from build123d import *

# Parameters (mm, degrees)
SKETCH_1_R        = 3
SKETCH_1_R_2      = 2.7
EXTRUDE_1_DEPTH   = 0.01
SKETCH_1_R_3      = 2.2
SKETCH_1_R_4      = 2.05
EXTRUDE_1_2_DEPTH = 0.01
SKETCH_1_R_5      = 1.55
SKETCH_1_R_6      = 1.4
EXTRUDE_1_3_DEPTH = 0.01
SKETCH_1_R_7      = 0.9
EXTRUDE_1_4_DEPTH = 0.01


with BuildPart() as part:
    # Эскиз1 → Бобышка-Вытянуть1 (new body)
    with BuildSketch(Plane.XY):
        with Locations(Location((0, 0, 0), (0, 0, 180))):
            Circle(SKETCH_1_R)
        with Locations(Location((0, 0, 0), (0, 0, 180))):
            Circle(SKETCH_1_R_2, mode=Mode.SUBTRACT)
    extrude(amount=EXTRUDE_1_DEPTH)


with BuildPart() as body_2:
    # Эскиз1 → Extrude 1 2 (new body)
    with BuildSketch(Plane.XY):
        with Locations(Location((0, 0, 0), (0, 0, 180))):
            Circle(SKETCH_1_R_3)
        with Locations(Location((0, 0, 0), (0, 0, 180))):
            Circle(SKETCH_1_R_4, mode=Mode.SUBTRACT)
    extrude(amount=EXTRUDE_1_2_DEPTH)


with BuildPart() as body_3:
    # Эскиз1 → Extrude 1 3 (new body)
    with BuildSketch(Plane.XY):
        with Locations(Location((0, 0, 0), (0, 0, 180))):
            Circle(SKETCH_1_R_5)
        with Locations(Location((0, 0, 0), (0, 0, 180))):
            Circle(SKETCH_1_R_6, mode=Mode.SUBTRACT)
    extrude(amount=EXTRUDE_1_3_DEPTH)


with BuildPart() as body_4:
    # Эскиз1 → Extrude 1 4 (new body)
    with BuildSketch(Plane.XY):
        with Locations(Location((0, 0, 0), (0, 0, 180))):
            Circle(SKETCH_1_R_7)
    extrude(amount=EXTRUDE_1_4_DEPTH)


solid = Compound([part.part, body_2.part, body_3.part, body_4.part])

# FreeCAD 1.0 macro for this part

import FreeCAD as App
import Part
import Sketcher
from FreeCAD import Vector

doc = App.newDocument("Part")
body = doc.addObject("PartDesign::Body", "Body")

# Sketch on XY plane
sketch1 = body.newObject("Sketcher::SketchObject", "Sketch")
sketch1.AttachmentSupport = (doc.getObject("XY_Plane"), [""])
sketch1.MapMode = "FlatFace"
sketch1.addGeometry(Part.Circle(Vector(0, 0, 0), Vector(0, 0, 1), 3), False)
sketch1.addGeometry(Part.Circle(Vector(0, 0, 0), Vector(0, 0, 1), 2.7), False)
sketch1.addConstraint(Sketcher.Constraint("Coincident", 0, 3, -1, 1))
sketch1.addConstraint(Sketcher.Constraint("Coincident", 1, 3, -1, 1))
sketch1.addConstraint(Sketcher.Constraint("Diameter", 0, 6.0))
sketch1.addConstraint(Sketcher.Constraint("Diameter", 1, 5.4))
pad1 = body.newObject("PartDesign::Pad", "Pad")
pad1.Profile = sketch1
pad1.Length = 0.01
body2 = doc.addObject("PartDesign::Body", "Body001")

# Sketch on XY plane
sketch2 = body2.newObject("Sketcher::SketchObject", "Sketch001")
sketch2.AttachmentSupport = (doc.getObject("XY_Plane001"), [""])
sketch2.MapMode = "FlatFace"
sketch2.addGeometry(Part.Circle(Vector(0, 0, 0), Vector(0, 0, 1), 2.2), False)
sketch2.addGeometry(Part.Circle(Vector(0, 0, 0), Vector(0, 0, 1), 2), False)
sketch2.addConstraint(Sketcher.Constraint("Coincident", 0, 3, -1, 1))
sketch2.addConstraint(Sketcher.Constraint("Coincident", 1, 3, -1, 1))
sketch2.addConstraint(Sketcher.Constraint("Diameter", 0, 4.4))
sketch2.addConstraint(Sketcher.Constraint("Diameter", 1, 4.1))
pad2 = body2.newObject("PartDesign::Pad", "Pad001")
pad2.Profile = sketch2
pad2.Length = 0.01
body3 = doc.addObject("PartDesign::Body", "Body002")

# Sketch on XY plane
sketch3 = body3.newObject("Sketcher::SketchObject", "Sketch002")
sketch3.AttachmentSupport = (doc.getObject("XY_Plane002"), [""])
sketch3.MapMode = "FlatFace"
sketch3.addGeometry(Part.Circle(Vector(0, 0, 0), Vector(0, 0, 1), 1.6), False)
sketch3.addGeometry(Part.Circle(Vector(0, 0, 0), Vector(0, 0, 1), 1.4), False)
sketch3.addConstraint(Sketcher.Constraint("Coincident", 0, 3, -1, 1))
sketch3.addConstraint(Sketcher.Constraint("Coincident", 1, 3, -1, 1))
sketch3.addConstraint(Sketcher.Constraint("Diameter", 0, 3.1))
sketch3.addConstraint(Sketcher.Constraint("Diameter", 1, 2.8))
pad3 = body3.newObject("PartDesign::Pad", "Pad002")
pad3.Profile = sketch3
pad3.Length = 0.01
body4 = doc.addObject("PartDesign::Body", "Body003")

# Sketch on XY plane
sketch4 = body4.newObject("Sketcher::SketchObject", "Sketch003")
sketch4.AttachmentSupport = (doc.getObject("XY_Plane003"), [""])
sketch4.MapMode = "FlatFace"
sketch4.addGeometry(Part.Circle(Vector(0, 0, 0), Vector(0, 0, 1), 0.9), False)
sketch4.addConstraint(Sketcher.Constraint("Coincident", 0, 3, -1, 1))
sketch4.addConstraint(Sketcher.Constraint("Diameter", 0, 1.8))
pad4 = body4.newObject("PartDesign::Pad", "Pad003")
pad4.Profile = sketch4
pad4.Length = 0.01

doc.recompute()
